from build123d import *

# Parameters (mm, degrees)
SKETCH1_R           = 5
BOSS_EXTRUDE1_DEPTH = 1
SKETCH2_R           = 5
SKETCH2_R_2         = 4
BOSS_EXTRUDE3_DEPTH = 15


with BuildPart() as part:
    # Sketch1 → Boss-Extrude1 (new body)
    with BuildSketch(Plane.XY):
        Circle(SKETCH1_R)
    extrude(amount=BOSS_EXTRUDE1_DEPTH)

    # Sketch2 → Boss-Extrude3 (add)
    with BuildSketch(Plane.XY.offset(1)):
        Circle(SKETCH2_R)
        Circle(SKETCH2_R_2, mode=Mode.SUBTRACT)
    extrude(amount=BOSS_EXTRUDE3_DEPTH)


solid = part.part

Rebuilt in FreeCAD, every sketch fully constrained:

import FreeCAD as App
import Part
import Sketcher

doc = App.newDocument("Part")
params = doc.addObject("Spreadsheet::Sheet", "Params")
for row, (alias, value) in enumerate([
    ("sketch1_diameter", "10 mm"),
    ("pad1_length", "1 mm"),
    ("sketch2_diameter", "10 mm"),
    ("sketch2_diameter2", "8 mm"),
    ("pad2_length", "15 mm"),
], start=1):
    params.set(f"A{row}", alias)
    params.set(f"B{row}", "=" + value)
    params.setAlias(f"B{row}", alias)

body = doc.addObject("PartDesign::Body", "Body")

# Sketch on XY plane
sketch1 = body.newObject("Sketcher::SketchObject", "Sketch")
sketch1.AttachmentSupport = (doc.getObject("XY_Plane"), [""])
sketch1.MapMode = "FlatFace"
sketch1.addGeometry(Part.Circle(App.Vector(0, 0, 0), App.Vector(0, 0, 1), 5), False)
sketch1.addConstraint(Sketcher.Constraint("Coincident", 0, 3, -1, 1))
sketch1.addConstraint(Sketcher.Constraint("Diameter", 0, 10.0))
sketch1.setExpression("Constraints[1]", "Params.sketch1_diameter")
pad1 = body.newObject("PartDesign::Pad", "Pad")
pad1.Profile = sketch1
pad1.setExpression("Length", "Params.pad1_length")

# Sketch on XY plane
sketch2 = body.newObject("Sketcher::SketchObject", "Sketch001")
sketch2.AttachmentSupport = (doc.getObject("XY_Plane"), [""])
sketch2.MapMode = "FlatFace"
sketch2.AttachmentOffset = App.Placement(App.Vector(0, 0, 1), App.Rotation())
sketch2.addGeometry(Part.Circle(App.Vector(0, 0, 0), App.Vector(0, 0, 1), 5), False)
sketch2.addGeometry(Part.Circle(App.Vector(0, 0, 0), App.Vector(0, 0, 1), 4), False)
sketch2.addConstraint(Sketcher.Constraint("Coincident", 0, 3, -1, 1))
sketch2.addConstraint(Sketcher.Constraint("Coincident", 1, 3, -1, 1))
sketch2.addConstraint(Sketcher.Constraint("Diameter", 0, 10.0))
sketch2.addConstraint(Sketcher.Constraint("Diameter", 1, 8.0))
sketch2.setExpression("Constraints[2]", "Params.sketch2_diameter")
sketch2.setExpression("Constraints[3]", "Params.sketch2_diameter2")
pad2 = body.newObject("PartDesign::Pad", "Pad001")
pad2.Profile = sketch2
pad2.setExpression("Length", "Params.pad2_length")

doc.recompute()
